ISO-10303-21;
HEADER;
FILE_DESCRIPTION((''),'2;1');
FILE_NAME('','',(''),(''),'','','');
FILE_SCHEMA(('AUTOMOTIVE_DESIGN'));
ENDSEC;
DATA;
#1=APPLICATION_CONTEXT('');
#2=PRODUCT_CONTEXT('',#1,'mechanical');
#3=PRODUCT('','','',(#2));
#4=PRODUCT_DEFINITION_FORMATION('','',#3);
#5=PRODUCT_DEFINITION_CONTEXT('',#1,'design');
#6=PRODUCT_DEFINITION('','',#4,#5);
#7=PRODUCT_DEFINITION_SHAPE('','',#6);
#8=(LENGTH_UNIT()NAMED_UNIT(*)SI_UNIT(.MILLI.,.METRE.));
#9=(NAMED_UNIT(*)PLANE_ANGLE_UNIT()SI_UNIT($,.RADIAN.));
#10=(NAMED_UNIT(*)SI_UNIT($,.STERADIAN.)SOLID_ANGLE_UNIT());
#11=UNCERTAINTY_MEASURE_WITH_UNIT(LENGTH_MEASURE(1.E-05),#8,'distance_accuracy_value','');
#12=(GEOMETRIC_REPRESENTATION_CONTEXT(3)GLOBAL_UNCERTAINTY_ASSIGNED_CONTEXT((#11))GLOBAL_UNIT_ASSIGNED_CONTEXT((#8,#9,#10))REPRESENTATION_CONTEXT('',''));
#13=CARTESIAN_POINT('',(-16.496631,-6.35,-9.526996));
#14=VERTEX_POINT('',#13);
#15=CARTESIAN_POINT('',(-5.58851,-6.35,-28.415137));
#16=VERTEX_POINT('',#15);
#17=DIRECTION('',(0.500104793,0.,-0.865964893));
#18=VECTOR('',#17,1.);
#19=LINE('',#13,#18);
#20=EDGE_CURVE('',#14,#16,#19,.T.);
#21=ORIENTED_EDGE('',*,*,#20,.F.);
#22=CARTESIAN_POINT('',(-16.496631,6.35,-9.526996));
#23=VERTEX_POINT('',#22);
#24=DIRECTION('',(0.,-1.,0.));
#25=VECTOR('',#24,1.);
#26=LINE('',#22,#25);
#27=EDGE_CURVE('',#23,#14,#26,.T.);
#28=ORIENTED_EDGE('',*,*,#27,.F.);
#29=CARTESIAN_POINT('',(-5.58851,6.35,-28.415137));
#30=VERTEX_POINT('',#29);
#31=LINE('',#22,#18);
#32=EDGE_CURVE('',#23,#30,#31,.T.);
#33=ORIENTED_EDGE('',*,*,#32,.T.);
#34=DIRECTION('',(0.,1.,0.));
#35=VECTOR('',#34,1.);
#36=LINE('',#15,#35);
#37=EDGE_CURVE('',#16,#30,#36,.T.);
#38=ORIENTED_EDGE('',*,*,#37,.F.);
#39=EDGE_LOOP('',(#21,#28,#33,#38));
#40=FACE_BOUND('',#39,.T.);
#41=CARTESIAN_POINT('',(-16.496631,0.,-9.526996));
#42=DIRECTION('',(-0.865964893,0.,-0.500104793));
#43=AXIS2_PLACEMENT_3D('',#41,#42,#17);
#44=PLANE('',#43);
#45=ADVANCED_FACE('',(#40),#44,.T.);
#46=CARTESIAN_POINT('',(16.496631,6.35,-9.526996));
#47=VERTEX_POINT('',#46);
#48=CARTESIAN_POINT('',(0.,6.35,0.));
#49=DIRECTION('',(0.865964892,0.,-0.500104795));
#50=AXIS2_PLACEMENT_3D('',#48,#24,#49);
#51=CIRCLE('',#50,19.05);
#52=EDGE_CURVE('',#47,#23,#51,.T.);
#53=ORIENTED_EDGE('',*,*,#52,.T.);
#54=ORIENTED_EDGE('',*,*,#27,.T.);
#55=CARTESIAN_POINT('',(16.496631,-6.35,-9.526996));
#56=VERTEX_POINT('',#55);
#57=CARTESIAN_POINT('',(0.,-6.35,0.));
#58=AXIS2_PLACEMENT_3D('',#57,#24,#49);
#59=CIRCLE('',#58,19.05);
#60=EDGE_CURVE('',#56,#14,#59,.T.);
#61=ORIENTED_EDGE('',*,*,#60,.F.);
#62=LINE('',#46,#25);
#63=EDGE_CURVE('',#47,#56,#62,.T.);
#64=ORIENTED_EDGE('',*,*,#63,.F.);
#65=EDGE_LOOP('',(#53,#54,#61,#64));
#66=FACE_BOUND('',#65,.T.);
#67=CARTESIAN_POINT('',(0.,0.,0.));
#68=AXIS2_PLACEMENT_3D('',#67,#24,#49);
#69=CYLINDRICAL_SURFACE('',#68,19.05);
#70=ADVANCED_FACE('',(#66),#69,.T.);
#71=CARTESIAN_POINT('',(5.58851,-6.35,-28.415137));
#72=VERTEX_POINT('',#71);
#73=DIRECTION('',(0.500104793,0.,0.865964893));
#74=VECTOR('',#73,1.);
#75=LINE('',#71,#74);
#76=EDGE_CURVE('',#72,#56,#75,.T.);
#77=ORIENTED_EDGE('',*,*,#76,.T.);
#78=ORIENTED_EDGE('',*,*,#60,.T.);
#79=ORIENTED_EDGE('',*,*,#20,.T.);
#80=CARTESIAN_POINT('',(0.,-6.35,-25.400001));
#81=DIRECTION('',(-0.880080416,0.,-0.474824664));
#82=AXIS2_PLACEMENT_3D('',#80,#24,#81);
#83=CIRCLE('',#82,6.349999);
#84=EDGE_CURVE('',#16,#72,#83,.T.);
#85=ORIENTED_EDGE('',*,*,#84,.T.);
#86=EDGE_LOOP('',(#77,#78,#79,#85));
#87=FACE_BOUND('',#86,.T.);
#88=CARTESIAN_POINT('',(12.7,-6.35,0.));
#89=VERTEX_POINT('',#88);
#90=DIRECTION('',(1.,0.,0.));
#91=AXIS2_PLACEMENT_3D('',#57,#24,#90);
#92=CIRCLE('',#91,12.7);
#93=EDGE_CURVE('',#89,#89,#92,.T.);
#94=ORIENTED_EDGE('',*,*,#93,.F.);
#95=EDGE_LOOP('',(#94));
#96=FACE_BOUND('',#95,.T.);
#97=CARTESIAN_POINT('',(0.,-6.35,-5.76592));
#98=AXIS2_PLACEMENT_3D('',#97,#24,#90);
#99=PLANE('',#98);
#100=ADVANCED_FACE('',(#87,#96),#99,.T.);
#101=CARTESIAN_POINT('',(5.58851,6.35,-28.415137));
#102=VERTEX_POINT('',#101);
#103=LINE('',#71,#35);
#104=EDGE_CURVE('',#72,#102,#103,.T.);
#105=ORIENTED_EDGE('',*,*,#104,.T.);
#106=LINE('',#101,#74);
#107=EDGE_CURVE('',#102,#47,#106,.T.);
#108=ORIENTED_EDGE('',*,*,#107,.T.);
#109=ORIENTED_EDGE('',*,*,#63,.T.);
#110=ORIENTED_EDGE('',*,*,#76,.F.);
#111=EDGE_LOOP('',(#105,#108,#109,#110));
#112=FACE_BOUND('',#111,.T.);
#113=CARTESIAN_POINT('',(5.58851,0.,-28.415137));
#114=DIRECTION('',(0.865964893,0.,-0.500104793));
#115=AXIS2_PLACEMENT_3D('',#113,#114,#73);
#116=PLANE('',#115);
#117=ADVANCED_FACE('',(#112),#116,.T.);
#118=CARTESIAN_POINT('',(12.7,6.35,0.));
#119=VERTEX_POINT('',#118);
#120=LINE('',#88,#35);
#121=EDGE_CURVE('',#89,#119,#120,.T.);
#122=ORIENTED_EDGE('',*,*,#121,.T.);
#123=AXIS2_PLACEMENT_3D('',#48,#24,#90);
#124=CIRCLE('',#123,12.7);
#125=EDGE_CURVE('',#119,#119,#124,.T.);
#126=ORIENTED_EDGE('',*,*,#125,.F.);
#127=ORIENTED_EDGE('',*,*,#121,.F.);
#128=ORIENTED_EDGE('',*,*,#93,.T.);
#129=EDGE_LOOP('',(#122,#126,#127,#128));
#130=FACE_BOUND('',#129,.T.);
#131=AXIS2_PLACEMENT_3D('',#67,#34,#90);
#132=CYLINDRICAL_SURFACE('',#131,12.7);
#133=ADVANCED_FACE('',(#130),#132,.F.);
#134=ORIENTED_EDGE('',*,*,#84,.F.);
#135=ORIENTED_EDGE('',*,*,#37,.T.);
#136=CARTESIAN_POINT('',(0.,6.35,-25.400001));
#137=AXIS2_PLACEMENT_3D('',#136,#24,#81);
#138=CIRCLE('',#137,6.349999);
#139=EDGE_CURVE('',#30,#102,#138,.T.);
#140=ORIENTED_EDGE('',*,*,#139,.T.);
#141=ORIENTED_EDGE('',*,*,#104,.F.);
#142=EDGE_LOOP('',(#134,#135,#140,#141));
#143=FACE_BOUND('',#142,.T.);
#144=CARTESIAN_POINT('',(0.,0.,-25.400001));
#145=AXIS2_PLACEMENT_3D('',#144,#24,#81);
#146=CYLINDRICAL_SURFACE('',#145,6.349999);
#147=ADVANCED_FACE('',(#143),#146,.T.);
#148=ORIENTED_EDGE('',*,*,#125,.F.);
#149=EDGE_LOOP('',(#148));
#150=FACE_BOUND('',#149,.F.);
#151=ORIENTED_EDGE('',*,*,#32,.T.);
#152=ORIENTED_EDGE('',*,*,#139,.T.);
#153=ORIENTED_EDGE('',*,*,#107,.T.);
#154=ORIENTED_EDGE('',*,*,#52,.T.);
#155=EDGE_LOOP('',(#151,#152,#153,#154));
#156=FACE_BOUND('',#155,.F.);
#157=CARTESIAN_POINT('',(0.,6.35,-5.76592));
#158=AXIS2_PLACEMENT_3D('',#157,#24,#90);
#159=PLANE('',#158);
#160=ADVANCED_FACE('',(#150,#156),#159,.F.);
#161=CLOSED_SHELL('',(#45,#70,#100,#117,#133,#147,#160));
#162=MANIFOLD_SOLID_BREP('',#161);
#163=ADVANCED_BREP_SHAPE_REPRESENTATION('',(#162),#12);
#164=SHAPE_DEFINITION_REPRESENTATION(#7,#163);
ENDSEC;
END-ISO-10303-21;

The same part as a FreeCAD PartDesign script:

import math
import FreeCAD as App
import Part
import Sketcher

V = App.Vector
Q = App.Units.Quantity

doc = App.newDocument("Part")
body = doc.addObject("PartDesign::Body", "Body")

sketch1 = body.newObject("Sketcher::SketchObject", "Sketch")
sketch1.AttachmentSupport = (doc.getObject("XZ_Plane"), [""])
sketch1.MapMode = "FlatFace"
sketch1.addGeometry([
    Part.LineSegment(V(5.58851, -28.415137, 0), V(16.496631, -9.526996, 0)),
    Part.ArcOfCircle(Part.Circle(V(0, 0, 0), V(0, 0, 1), 19.05), math.radians(-30.006933), math.radians(210.006933)),
    Part.LineSegment(V(-16.496631, -9.526996, 0), V(-5.58851, -28.415137, 0)),
    Part.ArcOfCircle(Part.Circle(V(0, -25.400001, 0), V(0, 0, 1), 6.349999), math.radians(-151.652065), math.radians(-28.347935)),
    Part.Circle(V(0, 0, 0), V(0, 0, 1), 12.7),
], False)
sketch1.addConstraint([
    Sketcher.Constraint("Tangent", 0, 2, 1, 1),
    Sketcher.Constraint("Tangent", 1, 2, 2, 1),
    Sketcher.Constraint("Coincident", 2, 2, 3, 1),
    Sketcher.Constraint("Coincident", 3, 2, 0, 1),
    Sketcher.Constraint("Coincident", 1, 3, -1, 1),
    Sketcher.Constraint("Coincident", 4, 3, -1, 1),
    Sketcher.Constraint("Symmetric", 2, 2, 3, 2, -2),
    Sketcher.Constraint("Diameter", 4, Q("1 in")),
    Sketcher.Constraint("Radius", 1, Q("0.75 in")),
    Sketcher.Constraint("Radius", 3, Q("0.25 in")),
    Sketcher.Constraint("DistanceY", 3, 3, -1, 1, Q("1 in")),
    Sketcher.Constraint("Distance", 0, Q("21.811671 mm")),
])
pad1 = body.newObject("PartDesign::Pad", "Pad")
pad1.Profile = sketch1
pad1.Length = Q("0.5 in")
pad1.Midplane = True

doc.recompute()
